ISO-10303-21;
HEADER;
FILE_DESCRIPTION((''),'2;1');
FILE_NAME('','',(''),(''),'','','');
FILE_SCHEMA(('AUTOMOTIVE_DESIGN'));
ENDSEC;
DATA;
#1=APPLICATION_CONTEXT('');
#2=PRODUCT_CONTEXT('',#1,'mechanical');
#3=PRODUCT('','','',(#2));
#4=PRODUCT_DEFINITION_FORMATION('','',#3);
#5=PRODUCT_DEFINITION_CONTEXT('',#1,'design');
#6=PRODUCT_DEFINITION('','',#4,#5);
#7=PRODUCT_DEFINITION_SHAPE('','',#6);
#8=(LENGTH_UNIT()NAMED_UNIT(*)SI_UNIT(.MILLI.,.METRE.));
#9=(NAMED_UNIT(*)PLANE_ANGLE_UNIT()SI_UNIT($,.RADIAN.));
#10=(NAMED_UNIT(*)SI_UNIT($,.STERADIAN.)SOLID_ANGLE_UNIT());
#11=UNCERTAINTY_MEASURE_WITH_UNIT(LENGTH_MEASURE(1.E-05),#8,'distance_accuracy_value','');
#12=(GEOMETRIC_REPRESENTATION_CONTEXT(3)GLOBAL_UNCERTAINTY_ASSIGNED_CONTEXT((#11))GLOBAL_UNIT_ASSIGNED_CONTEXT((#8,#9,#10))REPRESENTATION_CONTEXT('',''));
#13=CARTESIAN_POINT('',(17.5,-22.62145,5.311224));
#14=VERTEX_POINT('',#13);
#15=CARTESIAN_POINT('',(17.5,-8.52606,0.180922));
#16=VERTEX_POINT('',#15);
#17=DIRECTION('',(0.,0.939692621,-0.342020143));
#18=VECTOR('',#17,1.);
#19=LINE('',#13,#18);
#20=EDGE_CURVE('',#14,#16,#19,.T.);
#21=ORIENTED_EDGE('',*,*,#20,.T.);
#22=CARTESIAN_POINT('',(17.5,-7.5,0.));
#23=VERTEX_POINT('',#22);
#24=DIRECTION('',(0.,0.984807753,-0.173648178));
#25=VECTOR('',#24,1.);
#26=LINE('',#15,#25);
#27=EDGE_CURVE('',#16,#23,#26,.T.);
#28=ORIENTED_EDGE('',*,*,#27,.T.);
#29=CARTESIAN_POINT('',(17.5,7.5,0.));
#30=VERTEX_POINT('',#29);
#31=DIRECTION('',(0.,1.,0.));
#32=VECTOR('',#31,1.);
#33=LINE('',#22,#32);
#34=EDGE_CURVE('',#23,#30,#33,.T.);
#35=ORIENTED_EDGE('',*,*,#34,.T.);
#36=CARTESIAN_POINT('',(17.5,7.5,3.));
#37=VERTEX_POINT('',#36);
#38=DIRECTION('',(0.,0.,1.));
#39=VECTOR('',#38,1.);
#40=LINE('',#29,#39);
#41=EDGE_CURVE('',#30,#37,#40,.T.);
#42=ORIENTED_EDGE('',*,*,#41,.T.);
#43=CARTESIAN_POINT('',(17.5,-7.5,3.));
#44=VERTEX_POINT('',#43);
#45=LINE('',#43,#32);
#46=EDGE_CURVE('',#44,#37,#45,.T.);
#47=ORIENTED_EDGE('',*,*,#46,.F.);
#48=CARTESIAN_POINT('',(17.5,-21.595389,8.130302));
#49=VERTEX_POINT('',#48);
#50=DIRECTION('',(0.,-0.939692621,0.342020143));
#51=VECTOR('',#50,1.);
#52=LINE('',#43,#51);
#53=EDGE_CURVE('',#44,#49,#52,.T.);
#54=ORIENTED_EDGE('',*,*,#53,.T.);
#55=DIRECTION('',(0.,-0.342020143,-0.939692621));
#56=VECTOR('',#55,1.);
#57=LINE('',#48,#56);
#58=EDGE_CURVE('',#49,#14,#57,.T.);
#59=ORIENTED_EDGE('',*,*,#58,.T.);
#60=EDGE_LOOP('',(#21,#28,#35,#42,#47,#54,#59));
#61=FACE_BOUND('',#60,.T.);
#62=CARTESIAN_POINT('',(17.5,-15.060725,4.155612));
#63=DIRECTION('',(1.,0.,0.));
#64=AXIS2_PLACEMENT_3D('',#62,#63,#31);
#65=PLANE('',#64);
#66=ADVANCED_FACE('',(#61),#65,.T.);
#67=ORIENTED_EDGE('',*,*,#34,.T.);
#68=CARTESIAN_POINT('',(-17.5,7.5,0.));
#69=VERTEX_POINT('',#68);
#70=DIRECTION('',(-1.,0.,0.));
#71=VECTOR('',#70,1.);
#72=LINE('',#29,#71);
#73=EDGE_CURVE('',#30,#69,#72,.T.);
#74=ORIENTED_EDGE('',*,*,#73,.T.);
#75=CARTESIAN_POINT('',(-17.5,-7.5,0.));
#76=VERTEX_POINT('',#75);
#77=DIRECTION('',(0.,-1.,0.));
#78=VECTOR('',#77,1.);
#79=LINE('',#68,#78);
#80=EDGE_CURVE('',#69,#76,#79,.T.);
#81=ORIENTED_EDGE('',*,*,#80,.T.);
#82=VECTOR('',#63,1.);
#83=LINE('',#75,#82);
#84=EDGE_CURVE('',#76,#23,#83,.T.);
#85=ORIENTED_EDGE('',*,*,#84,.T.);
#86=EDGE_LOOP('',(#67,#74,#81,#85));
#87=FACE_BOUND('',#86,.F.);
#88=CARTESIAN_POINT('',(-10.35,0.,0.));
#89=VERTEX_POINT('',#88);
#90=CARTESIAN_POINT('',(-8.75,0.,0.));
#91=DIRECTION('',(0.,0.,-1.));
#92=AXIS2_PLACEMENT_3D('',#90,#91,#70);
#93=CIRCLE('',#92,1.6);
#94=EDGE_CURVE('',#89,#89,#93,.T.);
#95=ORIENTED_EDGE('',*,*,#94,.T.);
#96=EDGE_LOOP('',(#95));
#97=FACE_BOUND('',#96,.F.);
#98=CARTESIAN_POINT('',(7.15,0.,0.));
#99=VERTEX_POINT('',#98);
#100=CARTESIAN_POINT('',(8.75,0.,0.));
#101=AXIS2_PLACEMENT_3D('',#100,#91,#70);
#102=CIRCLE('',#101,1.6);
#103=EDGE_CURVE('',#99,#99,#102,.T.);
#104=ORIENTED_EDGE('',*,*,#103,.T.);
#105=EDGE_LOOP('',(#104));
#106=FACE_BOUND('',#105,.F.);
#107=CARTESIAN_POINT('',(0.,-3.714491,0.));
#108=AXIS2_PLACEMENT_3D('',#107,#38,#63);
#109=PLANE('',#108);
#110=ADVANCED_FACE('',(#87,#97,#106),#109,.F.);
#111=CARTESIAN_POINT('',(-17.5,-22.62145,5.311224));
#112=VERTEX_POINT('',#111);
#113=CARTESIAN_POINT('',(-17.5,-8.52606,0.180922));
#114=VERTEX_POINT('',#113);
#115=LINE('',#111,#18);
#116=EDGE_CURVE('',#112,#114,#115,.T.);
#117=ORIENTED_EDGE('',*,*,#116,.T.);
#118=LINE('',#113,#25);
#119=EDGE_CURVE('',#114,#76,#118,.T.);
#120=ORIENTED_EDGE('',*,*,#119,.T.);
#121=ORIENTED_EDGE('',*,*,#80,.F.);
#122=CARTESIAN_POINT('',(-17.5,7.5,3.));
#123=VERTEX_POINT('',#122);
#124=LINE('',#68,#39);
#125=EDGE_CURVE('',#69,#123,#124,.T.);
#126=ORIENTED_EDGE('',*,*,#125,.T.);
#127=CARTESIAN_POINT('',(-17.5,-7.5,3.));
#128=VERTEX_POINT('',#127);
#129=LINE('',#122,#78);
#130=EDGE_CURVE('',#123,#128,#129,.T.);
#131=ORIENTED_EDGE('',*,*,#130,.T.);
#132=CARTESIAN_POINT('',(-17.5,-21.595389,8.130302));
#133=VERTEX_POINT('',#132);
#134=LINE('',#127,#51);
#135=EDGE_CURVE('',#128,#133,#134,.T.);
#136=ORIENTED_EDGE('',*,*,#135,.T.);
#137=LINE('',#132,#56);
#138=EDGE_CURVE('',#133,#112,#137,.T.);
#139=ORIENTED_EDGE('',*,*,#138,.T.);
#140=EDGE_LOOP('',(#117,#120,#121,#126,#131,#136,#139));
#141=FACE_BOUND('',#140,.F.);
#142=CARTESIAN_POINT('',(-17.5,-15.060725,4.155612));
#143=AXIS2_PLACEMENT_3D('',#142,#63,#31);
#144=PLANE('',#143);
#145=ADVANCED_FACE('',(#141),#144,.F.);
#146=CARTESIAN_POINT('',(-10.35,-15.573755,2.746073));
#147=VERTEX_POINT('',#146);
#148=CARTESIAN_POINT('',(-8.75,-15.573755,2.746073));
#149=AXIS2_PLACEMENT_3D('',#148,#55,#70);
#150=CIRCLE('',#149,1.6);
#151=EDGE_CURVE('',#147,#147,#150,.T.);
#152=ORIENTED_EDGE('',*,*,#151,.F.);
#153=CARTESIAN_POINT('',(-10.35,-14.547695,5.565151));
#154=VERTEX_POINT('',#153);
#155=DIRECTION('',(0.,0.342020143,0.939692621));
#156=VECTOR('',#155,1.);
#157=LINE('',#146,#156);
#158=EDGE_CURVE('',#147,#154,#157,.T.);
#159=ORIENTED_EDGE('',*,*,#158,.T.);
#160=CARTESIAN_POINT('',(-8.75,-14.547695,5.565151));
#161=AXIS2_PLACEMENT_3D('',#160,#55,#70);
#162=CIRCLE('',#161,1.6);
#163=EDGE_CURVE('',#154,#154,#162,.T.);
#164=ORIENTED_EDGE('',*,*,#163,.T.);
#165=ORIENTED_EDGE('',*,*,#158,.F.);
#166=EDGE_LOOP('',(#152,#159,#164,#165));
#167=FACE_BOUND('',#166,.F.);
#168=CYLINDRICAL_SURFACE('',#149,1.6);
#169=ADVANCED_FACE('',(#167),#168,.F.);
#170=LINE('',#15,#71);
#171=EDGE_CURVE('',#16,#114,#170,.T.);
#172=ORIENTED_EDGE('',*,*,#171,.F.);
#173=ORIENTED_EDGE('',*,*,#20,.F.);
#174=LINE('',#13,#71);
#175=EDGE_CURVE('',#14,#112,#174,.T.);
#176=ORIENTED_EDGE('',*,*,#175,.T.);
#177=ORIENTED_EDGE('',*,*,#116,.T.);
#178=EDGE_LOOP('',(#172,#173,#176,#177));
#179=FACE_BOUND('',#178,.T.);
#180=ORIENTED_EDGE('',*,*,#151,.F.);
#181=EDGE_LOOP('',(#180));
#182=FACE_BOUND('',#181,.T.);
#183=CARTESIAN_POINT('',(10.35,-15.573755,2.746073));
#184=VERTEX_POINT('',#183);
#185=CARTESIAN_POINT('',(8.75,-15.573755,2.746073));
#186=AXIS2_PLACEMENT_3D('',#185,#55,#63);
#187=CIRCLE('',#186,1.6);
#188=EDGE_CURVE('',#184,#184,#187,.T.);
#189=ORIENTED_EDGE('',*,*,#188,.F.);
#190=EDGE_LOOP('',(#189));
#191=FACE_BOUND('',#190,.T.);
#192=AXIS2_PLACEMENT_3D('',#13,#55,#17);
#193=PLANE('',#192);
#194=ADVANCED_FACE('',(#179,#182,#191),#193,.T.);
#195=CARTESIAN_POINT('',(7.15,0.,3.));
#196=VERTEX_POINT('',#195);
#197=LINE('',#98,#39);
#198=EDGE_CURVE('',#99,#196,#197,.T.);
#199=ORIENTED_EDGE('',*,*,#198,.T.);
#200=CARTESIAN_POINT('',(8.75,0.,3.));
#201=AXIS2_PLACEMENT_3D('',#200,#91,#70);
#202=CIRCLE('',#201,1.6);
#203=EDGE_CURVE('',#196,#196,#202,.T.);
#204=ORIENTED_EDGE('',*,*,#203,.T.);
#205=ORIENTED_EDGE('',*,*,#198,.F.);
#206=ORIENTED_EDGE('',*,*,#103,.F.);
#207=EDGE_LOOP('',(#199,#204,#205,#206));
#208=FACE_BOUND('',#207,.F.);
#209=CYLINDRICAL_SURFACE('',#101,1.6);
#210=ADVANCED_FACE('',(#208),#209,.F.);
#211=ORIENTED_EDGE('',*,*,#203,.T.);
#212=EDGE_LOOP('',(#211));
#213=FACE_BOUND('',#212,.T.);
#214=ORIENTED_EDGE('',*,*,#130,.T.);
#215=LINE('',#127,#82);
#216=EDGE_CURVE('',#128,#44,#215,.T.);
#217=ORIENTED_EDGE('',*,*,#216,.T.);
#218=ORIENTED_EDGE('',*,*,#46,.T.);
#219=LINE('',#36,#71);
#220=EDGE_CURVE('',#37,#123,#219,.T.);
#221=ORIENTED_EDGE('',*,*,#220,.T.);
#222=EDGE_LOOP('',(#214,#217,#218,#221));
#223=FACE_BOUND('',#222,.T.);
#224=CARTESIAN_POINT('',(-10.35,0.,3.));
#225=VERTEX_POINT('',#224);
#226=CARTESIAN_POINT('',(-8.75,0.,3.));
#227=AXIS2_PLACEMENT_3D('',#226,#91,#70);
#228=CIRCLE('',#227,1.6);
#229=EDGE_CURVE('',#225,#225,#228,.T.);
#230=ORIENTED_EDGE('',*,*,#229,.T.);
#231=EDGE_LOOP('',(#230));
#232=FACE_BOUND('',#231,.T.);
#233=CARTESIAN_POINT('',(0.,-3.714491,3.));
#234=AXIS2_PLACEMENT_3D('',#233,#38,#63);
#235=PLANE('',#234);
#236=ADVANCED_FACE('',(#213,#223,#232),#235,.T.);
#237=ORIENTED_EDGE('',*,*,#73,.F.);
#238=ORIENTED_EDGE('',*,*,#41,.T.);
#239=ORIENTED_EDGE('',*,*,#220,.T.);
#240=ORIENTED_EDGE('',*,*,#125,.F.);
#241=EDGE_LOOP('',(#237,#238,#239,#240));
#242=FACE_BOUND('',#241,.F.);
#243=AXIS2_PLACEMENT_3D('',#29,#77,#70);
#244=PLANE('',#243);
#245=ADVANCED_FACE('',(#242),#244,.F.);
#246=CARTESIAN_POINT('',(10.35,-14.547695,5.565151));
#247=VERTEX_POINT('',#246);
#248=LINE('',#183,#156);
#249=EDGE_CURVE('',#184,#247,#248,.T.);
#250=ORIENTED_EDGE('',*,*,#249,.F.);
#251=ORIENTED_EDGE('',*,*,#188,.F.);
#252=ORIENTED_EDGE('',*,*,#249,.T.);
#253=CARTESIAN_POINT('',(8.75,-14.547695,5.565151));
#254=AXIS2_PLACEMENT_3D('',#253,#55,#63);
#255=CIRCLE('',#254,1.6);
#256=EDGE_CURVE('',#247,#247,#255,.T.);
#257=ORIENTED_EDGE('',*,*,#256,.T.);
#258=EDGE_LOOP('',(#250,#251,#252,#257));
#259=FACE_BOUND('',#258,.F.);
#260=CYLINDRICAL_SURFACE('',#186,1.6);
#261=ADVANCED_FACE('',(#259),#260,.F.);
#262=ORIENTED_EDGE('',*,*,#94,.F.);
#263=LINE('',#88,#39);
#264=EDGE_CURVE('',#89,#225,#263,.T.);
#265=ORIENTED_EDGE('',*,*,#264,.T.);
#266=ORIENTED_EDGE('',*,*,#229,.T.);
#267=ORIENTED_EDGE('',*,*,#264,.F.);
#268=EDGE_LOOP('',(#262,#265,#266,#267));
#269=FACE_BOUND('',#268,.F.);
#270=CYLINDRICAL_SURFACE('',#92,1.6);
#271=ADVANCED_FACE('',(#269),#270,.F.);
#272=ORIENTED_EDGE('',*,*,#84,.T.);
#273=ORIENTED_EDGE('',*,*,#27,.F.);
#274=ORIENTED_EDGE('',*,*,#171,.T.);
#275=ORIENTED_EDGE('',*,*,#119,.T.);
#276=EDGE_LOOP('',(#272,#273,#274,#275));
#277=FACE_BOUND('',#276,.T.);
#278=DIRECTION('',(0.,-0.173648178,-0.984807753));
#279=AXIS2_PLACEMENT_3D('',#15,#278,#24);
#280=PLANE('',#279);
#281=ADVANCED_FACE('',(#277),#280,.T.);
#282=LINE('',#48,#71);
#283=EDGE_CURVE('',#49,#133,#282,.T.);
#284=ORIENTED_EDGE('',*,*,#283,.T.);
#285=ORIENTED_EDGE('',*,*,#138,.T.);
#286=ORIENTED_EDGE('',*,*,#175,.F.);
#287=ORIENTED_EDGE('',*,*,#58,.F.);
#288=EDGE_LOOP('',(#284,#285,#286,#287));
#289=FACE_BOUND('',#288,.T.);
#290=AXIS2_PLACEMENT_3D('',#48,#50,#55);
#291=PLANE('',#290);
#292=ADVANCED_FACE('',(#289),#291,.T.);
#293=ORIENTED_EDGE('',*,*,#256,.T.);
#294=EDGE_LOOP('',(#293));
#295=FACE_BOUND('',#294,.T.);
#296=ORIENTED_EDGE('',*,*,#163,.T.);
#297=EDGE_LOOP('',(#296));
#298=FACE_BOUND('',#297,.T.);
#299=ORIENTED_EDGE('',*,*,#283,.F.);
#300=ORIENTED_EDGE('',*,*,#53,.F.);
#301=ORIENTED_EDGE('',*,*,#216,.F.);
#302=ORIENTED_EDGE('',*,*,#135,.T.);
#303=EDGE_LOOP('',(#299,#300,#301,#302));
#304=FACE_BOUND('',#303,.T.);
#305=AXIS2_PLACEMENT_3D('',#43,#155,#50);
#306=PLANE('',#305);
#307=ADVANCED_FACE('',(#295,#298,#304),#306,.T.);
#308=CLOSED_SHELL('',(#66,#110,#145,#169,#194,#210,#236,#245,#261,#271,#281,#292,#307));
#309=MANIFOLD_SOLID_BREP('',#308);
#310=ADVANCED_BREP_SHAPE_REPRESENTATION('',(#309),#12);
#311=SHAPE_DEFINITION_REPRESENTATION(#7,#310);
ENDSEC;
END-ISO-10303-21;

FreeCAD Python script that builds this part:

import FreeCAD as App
import Part
import Sketcher

V = App.Vector
Q = App.Units.Quantity

doc = App.newDocument("Part")
body = doc.addObject("PartDesign::Body", "Body")

# Sketch on XY plane
sketch1 = body.newObject("Sketcher::SketchObject", "Sketch")
sketch1.AttachmentSupport = (doc.getObject("XY_Plane"), [""])
sketch1.MapMode = "FlatFace"
sketch1.addGeometry([
    Part.LineSegment(V(-17.5, -7.5, 0), V(17.5, -7.5, 0)),  # 0
    Part.LineSegment(V(17.5, -7.5, 0), V(17.5, 7.5, 0)),  # 1
    Part.LineSegment(V(17.5, 7.5, 0), V(-17.5, 7.5, 0)),  # 2
    Part.LineSegment(V(-17.5, 7.5, 0), V(-17.5, -7.5, 0)),  # 3
    Part.Circle(V(8.75, 0, 0), V(0, 0, 1), 1.6),  # 4
    Part.Circle(V(-8.75, 0, 0), V(0, 0, 1), 1.6),  # 5
], False)
sketch1.addConstraint([
    Sketcher.Constraint("Coincident", 0, 2, 1, 1),
    Sketcher.Constraint("Coincident", 1, 2, 2, 1),
    Sketcher.Constraint("Coincident", 2, 2, 3, 1),
    Sketcher.Constraint("Coincident", 3, 2, 0, 1),
    Sketcher.Constraint("Horizontal", 0),
    Sketcher.Constraint("Vertical", 1),
    Sketcher.Constraint("Horizontal", 2),
    Sketcher.Constraint("Vertical", 3),
    Sketcher.Constraint("Equal", 4, 5),
    Sketcher.Constraint("Symmetric", 4, 3, 5, 3, -1, 1),
    Sketcher.Constraint("Symmetric", 0, 2, 2, 2, -1, 1),
    Sketcher.Constraint("PointOnObject", 4, 3, -1),
    Sketcher.Constraint("Diameter", 4, Q("3.2 mm")),
    Sketcher.Constraint("DistanceX", 0, 1, 0, 2, Q("35 mm")),
    Sketcher.Constraint("DistanceY", 1, 1, 1, 2, Q("15 mm")),
    Sketcher.Constraint("DistanceX", 5, 3, 4, 3, Q("17.5 mm")),
])
pad1 = body.newObject("PartDesign::Pad", "Pad")
pad1.Profile = sketch1
pad1.Length = 3

# Sketch on YZ plane
sketch2 = body.newObject("Sketcher::SketchObject", "Sketch001")
sketch2.AttachmentSupport = (doc.getObject("YZ_Plane"), [""])
sketch2.MapMode = "FlatFace"
sketch2.AttachmentOffset = App.Placement(V(0, 0, 17.5), App.Rotation())
sketch2.addGeometry([
    Part.LineSegment(V(-7.5, 3, 0), V(-21.595389, 8.130302, 0)),  # 0
    Part.LineSegment(V(-21.595389, 8.130302, 0), V(-22.62145, 5.311224, 0)),  # 1
    Part.LineSegment(V(-22.62145, 5.311224, 0), V(-8.52606, 0.180922, 0)),  # 2
    Part.LineSegment(V(-8.52606, 0.180922, 0), V(-7.5, 0, 0)),  # 3
    Part.LineSegment(V(-7.5, 0, 0), V(-7.5, 3, 0)),  # 4
], False)
sketch2.addConstraint([
    Sketcher.Constraint("Coincident", 0, 2, 1, 1),
    Sketcher.Constraint("Coincident", 1, 2, 2, 1),
    Sketcher.Constraint("Coincident", 2, 2, 3, 1),
    Sketcher.Constraint("Coincident", 3, 2, 4, 1),
    Sketcher.Constraint("Coincident", 4, 2, 0, 1),
    Sketcher.Constraint("Vertical", 4),
    Sketcher.Constraint("PointOnObject", 3, 2, -1),
    Sketcher.Constraint("Perpendicular", 0, 1),
    Sketcher.Constraint("Perpendicular", 1, 2),
    Sketcher.Constraint("Equal", 0, 2),
    Sketcher.Constraint("DistanceY", 4, 1, 4, 2, Q("3 mm")),
    Sketcher.Constraint("Angle", 0, Q("160 deg")),
    Sketcher.Constraint("Angle", 3, Q("-10 deg")),
    Sketcher.Constraint("Distance", 0, Q("15 mm")),
    Sketcher.Constraint("DistanceX", 3, 2, -1, 1, Q("7.5 mm")),
])
pad2 = body.newObject("PartDesign::Pad", "Pad001")
pad2.Profile = sketch2
pad2.Length = 35
pad2.Reversed = True

# Sketch on an angled plane
sketch3 = body.newObject("Sketcher::SketchObject", "Sketch002")
sketch3.Placement = App.Placement(V(0, -0.939212, -2.580465), App.Rotation(V(1, 0, 0), V(0, -0.939692621, 0.342020143), V(0, -0.342020143, -0.939692621), "ZXY"))
sketch3.addGeometry([
    Part.Circle(V(8.75, 15.573755, 0), V(0, 0, 1), 1.6),
    Part.Circle(V(-8.75, 15.573755, 0), V(0, 0, 1), 1.6),
], False)
sketch3.addConstraint([
    Sketcher.Constraint("Equal", 0, 1),
    Sketcher.Constraint("Symmetric", 0, 3, 1, 3, -2),
    Sketcher.Constraint("Diameter", 0, Q("3.2 mm")),
    Sketcher.Constraint("DistanceX", 1, 3, 0, 3, Q("17.5 mm")),
    Sketcher.Constraint("DistanceY", -1, 1, 0, 3, Q("15.573755 mm")),
])
pocket1 = body.newObject("PartDesign::Pocket", "Pocket")
pocket1.Profile = sketch3
pocket1.Length = 25

doc.recompute()
